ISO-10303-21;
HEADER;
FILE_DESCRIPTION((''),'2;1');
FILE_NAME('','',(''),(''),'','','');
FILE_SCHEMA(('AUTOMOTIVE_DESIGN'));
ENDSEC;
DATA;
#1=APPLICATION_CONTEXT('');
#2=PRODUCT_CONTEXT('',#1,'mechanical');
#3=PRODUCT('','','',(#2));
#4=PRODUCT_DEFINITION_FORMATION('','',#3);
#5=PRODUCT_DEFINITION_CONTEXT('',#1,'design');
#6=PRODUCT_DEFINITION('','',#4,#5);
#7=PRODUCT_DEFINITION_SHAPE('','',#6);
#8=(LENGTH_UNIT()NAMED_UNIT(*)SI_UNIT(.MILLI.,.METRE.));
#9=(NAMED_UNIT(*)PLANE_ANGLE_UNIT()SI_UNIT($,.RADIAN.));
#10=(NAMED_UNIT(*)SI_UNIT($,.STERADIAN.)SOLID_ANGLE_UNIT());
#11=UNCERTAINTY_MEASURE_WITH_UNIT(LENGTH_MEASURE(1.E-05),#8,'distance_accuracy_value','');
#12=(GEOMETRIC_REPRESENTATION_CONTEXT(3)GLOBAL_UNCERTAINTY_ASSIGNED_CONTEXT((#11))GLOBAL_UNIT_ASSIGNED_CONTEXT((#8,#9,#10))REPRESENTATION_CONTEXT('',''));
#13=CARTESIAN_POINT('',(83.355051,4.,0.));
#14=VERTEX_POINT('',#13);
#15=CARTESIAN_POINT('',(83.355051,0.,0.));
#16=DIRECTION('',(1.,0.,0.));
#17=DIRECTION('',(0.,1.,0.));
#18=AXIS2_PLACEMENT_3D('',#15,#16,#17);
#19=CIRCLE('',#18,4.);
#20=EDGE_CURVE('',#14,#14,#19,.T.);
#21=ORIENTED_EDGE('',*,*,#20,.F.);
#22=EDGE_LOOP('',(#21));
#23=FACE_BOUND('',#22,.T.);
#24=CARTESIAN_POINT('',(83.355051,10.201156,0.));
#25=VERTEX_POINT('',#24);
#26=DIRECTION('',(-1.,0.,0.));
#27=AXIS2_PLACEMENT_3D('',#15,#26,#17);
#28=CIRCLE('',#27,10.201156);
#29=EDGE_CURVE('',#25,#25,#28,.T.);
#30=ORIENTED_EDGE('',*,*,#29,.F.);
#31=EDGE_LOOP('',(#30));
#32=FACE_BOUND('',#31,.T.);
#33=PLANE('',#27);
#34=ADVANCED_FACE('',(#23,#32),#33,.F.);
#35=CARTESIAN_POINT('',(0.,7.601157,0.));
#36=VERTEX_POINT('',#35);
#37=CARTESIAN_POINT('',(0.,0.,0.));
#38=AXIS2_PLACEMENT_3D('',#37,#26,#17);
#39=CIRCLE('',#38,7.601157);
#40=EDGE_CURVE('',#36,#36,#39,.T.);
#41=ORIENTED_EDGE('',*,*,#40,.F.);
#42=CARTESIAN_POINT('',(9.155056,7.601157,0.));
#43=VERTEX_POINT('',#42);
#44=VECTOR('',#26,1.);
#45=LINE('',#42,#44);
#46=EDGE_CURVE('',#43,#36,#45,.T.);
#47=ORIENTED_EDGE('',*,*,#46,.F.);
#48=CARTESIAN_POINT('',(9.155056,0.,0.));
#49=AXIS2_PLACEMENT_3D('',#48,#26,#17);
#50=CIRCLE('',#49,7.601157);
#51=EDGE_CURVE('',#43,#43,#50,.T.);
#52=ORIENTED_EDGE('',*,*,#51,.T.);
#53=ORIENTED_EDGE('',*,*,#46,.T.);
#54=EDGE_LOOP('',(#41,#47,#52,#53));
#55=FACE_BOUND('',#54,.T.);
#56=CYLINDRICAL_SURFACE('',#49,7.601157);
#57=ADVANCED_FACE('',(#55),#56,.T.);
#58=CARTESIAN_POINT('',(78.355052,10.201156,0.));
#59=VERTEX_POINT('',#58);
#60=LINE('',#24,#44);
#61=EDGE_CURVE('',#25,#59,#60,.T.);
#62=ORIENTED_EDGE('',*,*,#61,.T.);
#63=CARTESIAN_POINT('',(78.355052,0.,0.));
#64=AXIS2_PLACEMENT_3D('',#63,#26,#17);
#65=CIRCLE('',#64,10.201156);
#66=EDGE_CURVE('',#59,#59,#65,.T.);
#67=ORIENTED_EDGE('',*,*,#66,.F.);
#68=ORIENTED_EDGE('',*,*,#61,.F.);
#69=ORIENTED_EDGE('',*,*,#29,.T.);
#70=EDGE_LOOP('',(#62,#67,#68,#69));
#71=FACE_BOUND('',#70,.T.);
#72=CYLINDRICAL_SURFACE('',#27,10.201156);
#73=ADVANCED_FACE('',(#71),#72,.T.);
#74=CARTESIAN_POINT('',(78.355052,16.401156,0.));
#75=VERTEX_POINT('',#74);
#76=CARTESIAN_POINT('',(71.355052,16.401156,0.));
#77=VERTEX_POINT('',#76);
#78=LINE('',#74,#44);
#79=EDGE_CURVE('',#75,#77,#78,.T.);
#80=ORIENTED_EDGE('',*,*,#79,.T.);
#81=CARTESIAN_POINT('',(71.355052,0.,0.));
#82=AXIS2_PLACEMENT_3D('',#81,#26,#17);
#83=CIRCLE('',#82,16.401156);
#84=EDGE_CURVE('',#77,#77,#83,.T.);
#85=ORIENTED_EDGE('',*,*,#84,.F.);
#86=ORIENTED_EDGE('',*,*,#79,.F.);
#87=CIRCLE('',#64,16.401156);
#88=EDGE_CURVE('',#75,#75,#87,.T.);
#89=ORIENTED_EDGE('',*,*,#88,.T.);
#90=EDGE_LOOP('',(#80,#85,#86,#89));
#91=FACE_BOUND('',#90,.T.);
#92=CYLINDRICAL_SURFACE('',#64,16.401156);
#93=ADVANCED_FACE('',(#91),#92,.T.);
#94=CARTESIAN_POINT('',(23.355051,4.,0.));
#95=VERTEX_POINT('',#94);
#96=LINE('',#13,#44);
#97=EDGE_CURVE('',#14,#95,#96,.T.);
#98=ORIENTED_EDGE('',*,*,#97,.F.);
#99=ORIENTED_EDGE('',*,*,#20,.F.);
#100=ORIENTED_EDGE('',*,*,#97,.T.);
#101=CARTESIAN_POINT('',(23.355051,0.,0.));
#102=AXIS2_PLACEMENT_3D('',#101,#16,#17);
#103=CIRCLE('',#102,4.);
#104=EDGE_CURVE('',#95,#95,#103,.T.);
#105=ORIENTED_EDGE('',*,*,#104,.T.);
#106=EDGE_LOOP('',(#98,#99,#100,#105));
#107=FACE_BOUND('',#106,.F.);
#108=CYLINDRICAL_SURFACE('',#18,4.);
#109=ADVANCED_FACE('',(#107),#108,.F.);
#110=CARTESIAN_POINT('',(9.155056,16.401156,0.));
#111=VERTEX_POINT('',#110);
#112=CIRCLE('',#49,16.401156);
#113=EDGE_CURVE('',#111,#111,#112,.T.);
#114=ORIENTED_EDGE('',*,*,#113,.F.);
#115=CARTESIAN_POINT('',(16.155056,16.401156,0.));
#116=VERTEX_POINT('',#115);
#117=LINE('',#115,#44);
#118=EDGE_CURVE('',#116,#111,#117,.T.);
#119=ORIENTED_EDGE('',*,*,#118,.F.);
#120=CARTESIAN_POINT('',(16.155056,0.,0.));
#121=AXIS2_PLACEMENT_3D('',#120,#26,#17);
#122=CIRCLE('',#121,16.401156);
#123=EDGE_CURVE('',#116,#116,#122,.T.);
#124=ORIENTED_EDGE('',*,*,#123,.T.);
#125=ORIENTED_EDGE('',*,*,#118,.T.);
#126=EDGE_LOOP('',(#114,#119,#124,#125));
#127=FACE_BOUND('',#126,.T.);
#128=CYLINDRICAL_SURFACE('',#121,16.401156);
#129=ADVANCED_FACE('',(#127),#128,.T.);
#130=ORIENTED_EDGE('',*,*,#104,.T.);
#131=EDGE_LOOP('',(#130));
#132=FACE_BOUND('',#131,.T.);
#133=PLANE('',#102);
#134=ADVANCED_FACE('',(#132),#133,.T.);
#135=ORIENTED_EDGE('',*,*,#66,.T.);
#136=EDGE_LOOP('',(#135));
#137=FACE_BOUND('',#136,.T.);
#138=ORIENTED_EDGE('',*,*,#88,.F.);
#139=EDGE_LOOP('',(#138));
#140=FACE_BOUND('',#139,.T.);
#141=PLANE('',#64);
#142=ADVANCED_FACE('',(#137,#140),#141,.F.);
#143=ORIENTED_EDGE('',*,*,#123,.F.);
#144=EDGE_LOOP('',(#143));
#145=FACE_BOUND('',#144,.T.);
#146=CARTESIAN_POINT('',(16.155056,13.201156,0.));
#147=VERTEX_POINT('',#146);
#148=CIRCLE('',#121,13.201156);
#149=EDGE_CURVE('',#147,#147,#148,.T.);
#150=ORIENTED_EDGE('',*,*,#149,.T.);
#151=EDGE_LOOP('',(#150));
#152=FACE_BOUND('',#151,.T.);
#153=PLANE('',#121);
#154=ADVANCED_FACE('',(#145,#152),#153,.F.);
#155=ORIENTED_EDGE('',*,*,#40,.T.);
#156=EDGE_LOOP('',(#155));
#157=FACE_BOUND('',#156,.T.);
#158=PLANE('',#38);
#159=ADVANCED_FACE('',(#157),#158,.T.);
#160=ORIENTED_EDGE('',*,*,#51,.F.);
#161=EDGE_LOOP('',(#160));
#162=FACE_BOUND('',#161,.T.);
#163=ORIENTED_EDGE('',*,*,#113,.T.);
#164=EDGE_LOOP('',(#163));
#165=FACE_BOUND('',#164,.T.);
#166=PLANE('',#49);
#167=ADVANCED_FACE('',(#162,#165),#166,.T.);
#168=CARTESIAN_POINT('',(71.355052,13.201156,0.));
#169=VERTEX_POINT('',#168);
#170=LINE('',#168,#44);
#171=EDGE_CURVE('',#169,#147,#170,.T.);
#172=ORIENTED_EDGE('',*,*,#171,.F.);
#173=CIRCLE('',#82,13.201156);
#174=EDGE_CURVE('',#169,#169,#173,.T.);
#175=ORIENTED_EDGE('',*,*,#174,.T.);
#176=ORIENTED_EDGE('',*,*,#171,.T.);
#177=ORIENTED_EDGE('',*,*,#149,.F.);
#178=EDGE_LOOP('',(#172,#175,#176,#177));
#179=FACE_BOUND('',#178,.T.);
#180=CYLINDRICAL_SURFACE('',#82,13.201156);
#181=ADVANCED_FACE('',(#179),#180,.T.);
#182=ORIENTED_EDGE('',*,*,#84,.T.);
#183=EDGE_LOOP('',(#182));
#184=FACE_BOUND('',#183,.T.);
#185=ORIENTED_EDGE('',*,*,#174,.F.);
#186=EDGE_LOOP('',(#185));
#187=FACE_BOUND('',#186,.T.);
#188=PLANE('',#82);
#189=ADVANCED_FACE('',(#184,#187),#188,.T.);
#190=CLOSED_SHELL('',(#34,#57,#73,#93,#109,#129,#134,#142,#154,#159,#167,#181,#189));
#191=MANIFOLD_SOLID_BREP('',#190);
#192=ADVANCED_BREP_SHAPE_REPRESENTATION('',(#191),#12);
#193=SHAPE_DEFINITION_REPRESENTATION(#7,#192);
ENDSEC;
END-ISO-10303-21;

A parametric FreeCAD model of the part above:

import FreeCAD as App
import Part
import Sketcher


def add_polygon(sketch, points):
    """Adds a closed chain of lines whose ends are joined by coincident constraints."""
    first, n = sketch.GeometryCount, len(points)
    for a, b in zip(points, points[1:] + points[:1]):
        sketch.addGeometry(Part.LineSegment(App.Vector(*a, 0), App.Vector(*b, 0)), False)
    for i in range(n):
        sketch.addConstraint(Sketcher.Constraint("Coincident", first + i, 2, first + (i + 1) % n, 1))

doc = App.newDocument("Part")
body = doc.addObject("PartDesign::Body", "Body")

# Sketch on XY plane
sketch1 = body.newObject("Sketcher::SketchObject", "Sketch")
sketch1.AttachmentSupport = (doc.getObject("XY_Plane"), [""])
sketch1.MapMode = "FlatFace"
add_polygon(sketch1, [(0, 7.6), (0, 0), (83.4, 0), (83.4, 10.2), (78.4, 10.2), (78.4, 16.4), (71.4, 16.4), (71.4, 13.2), (16.2, 13.2), (16.2, 16.4), (9.2, 16.4), (9.2, 7.6)])  # lines 0-11
sketch1.addConstraint([
    Sketcher.Constraint("Vertical", 0),
    Sketcher.Constraint("Horizontal", 1),
    Sketcher.Constraint("Vertical", 2),
    Sketcher.Constraint("Horizontal", 3),
    Sketcher.Constraint("Vertical", 4),
    Sketcher.Constraint("Horizontal", 5),
    Sketcher.Constraint("Vertical", 6),
    Sketcher.Constraint("Horizontal", 7),
    Sketcher.Constraint("Vertical", 8),
    Sketcher.Constraint("Horizontal", 9),
    Sketcher.Constraint("Vertical", 10),
    Sketcher.Constraint("Horizontal", 11),
    Sketcher.Constraint("Coincident", 0, 2, -1, 1),
    Sketcher.Constraint("Horizontal", 5, 2, 8, 2),
    Sketcher.Constraint("Equal", 5, 9),
    Sketcher.Constraint("DistanceX", 3, 2, 3, 1, 4.999999),
    Sketcher.Constraint("DistanceX", 5, 2, 5, 1, 7.0),
    Sketcher.Constraint("DistanceY", 4, 1, 4, 2, 6.2),
    Sketcher.Constraint("DistanceY", 6, 2, 6, 1, 3.2),
    Sketcher.Constraint("DistanceY", 10, 2, 10, 1, 8.799999),
    Sketcher.Constraint("DistanceX", 1, 1, 1, 2, 83.355051),
    Sketcher.Constraint("DistanceX", 7, 2, 7, 1, 55.199996),
    Sketcher.Constraint("DistanceY", 0, 2, 0, 1, 7.601157),
])
revolution = body.newObject("PartDesign::Revolution", "Revolution")
revolution.Profile = sketch1
revolution.ReferenceAxis = (sketch1, ["H_Axis"])
revolution.Angle = 360

# Sketch on YZ plane
sketch2 = body.newObject("Sketcher::SketchObject", "Sketch001")
sketch2.AttachmentSupport = (doc.getObject("YZ_Plane"), [""])
sketch2.MapMode = "FlatFace"
sketch2.AttachmentOffset = App.Placement(App.Vector(0, 0, 83.355051), App.Rotation())
sketch2.addGeometry(Part.Circle(App.Vector(0, 0, 0), App.Vector(0, 0, 1), 4), False)
sketch2.addConstraint([
    Sketcher.Constraint("Coincident", 0, 3, -1, 1),
    Sketcher.Constraint("Diameter", 0, 8.0),
])
pocket1 = body.newObject("PartDesign::Pocket", "Pocket")
pocket1.Profile = sketch2
pocket1.Length = 60

doc.recompute()
